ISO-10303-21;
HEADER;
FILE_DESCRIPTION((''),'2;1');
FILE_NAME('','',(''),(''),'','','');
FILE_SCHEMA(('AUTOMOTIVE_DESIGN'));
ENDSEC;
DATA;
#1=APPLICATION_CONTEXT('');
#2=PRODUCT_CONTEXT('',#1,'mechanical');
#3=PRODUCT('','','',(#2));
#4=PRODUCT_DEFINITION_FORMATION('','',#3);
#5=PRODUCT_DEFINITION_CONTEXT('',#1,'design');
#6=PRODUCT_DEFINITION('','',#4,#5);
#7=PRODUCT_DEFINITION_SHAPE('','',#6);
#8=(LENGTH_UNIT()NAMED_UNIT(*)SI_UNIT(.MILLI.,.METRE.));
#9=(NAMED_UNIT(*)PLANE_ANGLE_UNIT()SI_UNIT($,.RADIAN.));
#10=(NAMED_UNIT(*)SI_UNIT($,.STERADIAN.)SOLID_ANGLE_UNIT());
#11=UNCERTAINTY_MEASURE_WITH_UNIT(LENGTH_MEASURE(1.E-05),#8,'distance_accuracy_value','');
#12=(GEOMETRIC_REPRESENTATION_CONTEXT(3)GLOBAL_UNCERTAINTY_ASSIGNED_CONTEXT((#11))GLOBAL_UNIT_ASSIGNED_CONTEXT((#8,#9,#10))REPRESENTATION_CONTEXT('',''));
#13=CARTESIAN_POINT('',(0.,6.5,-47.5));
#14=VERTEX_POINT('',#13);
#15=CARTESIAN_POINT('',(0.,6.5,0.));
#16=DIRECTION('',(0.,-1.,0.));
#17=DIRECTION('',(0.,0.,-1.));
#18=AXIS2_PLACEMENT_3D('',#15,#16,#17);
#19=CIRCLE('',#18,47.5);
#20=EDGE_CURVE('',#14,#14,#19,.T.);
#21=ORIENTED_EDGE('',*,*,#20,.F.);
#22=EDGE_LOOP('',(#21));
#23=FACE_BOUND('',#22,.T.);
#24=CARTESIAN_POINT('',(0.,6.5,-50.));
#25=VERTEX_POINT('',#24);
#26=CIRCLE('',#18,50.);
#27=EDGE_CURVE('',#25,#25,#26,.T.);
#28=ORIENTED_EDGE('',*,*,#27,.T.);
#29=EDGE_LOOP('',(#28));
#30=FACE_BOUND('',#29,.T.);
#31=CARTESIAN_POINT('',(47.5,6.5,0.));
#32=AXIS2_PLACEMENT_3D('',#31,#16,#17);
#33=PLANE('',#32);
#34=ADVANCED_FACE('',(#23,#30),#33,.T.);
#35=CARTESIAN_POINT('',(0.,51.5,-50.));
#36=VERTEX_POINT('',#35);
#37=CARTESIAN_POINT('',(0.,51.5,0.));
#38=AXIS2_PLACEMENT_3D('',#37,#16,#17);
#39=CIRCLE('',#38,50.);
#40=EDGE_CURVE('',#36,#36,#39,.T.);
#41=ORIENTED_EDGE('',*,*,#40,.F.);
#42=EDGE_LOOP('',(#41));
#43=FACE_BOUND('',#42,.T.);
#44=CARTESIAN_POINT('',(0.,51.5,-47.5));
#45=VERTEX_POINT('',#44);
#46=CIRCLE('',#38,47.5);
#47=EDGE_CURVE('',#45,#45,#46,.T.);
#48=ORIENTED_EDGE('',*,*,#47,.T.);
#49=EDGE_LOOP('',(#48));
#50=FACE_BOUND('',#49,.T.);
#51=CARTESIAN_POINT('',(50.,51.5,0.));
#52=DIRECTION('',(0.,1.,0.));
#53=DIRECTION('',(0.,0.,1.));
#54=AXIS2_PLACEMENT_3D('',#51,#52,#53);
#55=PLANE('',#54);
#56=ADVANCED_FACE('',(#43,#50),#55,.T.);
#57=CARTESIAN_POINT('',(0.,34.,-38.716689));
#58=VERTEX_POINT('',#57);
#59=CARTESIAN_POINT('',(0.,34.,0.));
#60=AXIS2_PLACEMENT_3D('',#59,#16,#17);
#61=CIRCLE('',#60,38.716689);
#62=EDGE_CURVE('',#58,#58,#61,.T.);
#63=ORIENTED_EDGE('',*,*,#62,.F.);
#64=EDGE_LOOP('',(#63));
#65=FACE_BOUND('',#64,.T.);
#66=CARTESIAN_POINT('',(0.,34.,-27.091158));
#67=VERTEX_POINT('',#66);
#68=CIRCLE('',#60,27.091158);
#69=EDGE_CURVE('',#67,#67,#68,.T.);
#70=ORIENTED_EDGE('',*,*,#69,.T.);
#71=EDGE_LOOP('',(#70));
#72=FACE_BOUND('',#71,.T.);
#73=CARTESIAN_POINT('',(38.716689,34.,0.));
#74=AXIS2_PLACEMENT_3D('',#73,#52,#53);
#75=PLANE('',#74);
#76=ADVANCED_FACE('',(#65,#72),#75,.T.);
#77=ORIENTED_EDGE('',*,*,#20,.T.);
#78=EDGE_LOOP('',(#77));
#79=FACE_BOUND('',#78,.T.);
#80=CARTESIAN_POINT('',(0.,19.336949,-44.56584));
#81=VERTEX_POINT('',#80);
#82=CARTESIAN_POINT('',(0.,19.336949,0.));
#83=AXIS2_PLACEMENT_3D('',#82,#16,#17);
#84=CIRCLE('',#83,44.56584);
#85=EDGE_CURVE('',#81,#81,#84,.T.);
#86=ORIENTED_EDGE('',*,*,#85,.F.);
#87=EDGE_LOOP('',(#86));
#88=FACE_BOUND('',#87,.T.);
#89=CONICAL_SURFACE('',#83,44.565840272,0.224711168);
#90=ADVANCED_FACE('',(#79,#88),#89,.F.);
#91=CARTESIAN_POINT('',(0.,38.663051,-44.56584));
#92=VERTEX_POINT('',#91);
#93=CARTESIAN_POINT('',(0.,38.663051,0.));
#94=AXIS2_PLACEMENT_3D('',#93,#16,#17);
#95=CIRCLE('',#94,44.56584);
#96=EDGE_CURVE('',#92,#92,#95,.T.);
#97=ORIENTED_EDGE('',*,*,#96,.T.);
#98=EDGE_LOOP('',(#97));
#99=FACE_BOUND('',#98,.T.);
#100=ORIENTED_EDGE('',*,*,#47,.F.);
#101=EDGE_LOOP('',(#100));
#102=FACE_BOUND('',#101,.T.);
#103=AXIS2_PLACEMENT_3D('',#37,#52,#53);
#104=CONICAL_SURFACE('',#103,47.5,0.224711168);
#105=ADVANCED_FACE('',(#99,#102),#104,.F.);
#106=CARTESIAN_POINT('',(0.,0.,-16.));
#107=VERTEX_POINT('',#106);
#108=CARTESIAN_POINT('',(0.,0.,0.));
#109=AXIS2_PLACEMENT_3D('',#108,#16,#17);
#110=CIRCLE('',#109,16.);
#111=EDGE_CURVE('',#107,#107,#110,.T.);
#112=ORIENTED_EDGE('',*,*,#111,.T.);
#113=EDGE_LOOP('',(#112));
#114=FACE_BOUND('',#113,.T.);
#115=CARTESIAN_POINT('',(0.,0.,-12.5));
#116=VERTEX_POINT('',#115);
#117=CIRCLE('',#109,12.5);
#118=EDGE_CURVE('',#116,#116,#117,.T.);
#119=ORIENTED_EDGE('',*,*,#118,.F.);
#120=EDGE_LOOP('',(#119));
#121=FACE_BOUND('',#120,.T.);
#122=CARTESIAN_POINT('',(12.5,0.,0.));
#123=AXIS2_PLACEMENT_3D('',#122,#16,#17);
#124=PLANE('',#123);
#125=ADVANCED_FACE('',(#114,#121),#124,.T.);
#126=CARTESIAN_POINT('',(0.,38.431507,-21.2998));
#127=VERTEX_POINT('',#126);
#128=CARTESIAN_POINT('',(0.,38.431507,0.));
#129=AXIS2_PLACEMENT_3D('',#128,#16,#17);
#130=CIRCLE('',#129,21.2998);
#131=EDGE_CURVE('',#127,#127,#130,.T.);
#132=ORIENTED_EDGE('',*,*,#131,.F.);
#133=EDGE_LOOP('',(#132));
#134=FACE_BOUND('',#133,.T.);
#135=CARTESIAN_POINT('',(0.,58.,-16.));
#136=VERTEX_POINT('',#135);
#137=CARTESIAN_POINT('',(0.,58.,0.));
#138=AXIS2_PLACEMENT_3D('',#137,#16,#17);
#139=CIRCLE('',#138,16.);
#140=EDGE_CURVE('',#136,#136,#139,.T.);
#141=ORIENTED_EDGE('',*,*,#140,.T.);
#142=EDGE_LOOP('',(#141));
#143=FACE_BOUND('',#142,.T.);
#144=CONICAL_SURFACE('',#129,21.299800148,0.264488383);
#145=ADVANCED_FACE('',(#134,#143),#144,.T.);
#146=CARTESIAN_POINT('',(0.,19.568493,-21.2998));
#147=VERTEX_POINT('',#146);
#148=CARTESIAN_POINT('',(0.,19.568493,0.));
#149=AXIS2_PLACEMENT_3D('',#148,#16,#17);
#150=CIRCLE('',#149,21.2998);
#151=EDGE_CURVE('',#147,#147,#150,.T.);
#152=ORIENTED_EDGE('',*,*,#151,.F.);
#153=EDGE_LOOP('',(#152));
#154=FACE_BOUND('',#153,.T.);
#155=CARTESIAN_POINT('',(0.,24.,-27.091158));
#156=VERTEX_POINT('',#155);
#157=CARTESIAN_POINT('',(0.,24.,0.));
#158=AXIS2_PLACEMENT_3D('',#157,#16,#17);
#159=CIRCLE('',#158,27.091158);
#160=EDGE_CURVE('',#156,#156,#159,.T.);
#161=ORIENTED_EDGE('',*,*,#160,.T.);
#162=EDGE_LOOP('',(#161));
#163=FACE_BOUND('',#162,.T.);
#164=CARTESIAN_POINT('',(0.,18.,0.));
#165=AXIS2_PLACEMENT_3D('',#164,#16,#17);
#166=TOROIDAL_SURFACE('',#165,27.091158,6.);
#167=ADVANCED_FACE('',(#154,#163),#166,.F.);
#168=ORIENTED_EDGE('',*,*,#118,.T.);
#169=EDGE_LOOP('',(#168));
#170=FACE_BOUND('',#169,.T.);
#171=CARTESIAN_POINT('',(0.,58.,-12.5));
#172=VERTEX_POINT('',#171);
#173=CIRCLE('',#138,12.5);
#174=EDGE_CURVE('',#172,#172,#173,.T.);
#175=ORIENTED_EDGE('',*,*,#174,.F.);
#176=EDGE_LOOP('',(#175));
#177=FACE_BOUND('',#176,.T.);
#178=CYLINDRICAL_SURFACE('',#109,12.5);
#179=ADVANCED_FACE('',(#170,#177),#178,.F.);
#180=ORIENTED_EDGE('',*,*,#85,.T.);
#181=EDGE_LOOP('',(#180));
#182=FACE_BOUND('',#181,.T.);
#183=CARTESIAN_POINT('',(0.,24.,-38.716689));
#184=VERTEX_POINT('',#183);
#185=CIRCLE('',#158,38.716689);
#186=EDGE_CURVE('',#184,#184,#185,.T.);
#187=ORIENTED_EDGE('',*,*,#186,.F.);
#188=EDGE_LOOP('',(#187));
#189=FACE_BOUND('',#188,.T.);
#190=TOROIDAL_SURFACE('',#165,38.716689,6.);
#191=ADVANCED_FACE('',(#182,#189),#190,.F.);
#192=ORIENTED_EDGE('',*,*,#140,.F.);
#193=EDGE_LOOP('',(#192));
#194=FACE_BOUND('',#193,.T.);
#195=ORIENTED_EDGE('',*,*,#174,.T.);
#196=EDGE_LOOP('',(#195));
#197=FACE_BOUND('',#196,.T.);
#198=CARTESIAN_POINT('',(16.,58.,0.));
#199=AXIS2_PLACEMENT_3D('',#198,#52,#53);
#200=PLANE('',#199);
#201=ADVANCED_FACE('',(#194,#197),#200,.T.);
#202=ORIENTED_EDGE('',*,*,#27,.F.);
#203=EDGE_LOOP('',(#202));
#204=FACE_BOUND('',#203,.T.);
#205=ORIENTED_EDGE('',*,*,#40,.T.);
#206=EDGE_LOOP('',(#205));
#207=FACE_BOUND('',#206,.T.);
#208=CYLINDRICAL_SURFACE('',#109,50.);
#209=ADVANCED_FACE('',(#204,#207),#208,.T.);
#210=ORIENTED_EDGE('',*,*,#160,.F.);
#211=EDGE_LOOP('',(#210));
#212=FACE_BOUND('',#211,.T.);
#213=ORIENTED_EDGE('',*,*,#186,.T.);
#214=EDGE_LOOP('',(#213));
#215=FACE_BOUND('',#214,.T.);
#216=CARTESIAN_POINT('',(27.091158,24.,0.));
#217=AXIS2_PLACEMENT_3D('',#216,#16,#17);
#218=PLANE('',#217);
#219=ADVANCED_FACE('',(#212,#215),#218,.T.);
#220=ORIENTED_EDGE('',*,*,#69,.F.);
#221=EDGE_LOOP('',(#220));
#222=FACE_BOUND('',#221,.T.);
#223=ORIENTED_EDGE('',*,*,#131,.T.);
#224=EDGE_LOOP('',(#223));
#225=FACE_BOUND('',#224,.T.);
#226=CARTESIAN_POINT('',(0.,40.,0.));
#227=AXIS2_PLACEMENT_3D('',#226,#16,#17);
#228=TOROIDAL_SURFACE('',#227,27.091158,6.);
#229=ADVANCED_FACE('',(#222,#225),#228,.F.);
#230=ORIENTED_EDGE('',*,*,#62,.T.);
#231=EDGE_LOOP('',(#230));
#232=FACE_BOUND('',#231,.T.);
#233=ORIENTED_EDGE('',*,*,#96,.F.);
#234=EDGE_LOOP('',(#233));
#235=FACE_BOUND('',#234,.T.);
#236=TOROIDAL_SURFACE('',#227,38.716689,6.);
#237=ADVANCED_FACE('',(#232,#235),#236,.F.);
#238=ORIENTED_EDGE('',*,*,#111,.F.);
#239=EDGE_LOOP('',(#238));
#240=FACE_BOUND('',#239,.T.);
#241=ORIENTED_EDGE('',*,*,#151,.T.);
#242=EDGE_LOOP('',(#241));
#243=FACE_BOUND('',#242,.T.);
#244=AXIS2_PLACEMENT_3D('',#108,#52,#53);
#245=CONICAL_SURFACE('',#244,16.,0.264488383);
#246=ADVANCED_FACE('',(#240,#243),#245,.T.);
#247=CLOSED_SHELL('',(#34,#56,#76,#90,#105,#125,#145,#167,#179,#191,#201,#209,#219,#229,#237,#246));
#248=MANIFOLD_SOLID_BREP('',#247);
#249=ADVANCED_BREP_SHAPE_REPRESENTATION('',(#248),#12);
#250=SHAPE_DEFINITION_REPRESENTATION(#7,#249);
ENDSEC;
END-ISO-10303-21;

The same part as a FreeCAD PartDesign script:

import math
import FreeCAD as App
import Part
import Sketcher

V = App.Vector
Q = App.Units.Quantity

doc = App.newDocument("Part")
body = doc.addObject("PartDesign::Body", "Body")

# Sketch on XY plane
sketch1 = body.newObject("Sketcher::SketchObject", "Sketch")
sketch1.AttachmentSupport = (doc.getObject("XY_Plane"), [""])
sketch1.MapMode = "FlatFace"
sketch1.addGeometry(Part.LineSegment(V(12.5, 0, 0), V(16, 0, 0)), False)
sketch1.addGeometry(Part.LineSegment(V(16, 0, 0), V(21.3, 19.6, 0)), False)
sketch1.addGeometry(Part.ArcOfCircle(Part.Circle(V(27.1, 18, 0), V(0, 0, 1), 6), math.radians(90), math.radians(165)), False)
sketch1.addGeometry(Part.LineSegment(V(27.1, 24, 0), V(38.7, 24, 0)), False)
sketch1.addGeometry(Part.ArcOfCircle(Part.Circle(V(38.7, 18, 0), V(0, 0, 1), 6), math.radians(13), math.radians(90)), False)
sketch1.addGeometry(Part.LineSegment(V(44.6, 19.3, 0), V(47.5, 6.5, 0)), False)
sketch1.addGeometry(Part.LineSegment(V(47.5, 6.5, 0), V(50, 6.5, 0)), False)
sketch1.addGeometry(Part.LineSegment(V(50, 6.5, 0), V(50, 51.5, 0)), False)
sketch1.addGeometry(Part.LineSegment(V(50, 51.5, 0), V(47.5, 51.5, 0)), False)
sketch1.addGeometry(Part.LineSegment(V(47.5, 51.5, 0), V(44.6, 38.7, 0)), False)
sketch1.addGeometry(Part.ArcOfCircle(Part.Circle(V(38.7, 40, 0), V(0, 0, 1), 6), math.radians(-90), math.radians(-13)), False)
sketch1.addGeometry(Part.LineSegment(V(38.7, 34, 0), V(27.1, 34, 0)), False)
sketch1.addGeometry(Part.ArcOfCircle(Part.Circle(V(27.1, 40, 0), V(0, 0, 1), 6), math.radians(-165), math.radians(-90)), False)
sketch1.addGeometry(Part.LineSegment(V(21.3, 38.4, 0), V(16, 58, 0)), False)
sketch1.addGeometry(Part.LineSegment(V(16, 58, 0), V(12.5, 58, 0)), False)
sketch1.addGeometry(Part.LineSegment(V(12.5, 58, 0), V(12.5, 0, 0)), False)
sketch1.addConstraint(Sketcher.Constraint("Coincident", 0, 2, 1, 1))
sketch1.addConstraint(Sketcher.Constraint("Tangent", 1, 2, 2, 2))
sketch1.addConstraint(Sketcher.Constraint("Tangent", 2, 1, 3, 1))
sketch1.addConstraint(Sketcher.Constraint("Tangent", 3, 2, 4, 2))
sketch1.addConstraint(Sketcher.Constraint("Tangent", 4, 1, 5, 1))
sketch1.addConstraint(Sketcher.Constraint("Coincident", 5, 2, 6, 1))
sketch1.addConstraint(Sketcher.Constraint("Coincident", 6, 2, 7, 1))
sketch1.addConstraint(Sketcher.Constraint("Coincident", 7, 2, 8, 1))
sketch1.addConstraint(Sketcher.Constraint("Coincident", 8, 2, 9, 1))
sketch1.addConstraint(Sketcher.Constraint("Tangent", 9, 2, 10, 2))
sketch1.addConstraint(Sketcher.Constraint("Tangent", 10, 1, 11, 1))
sketch1.addConstraint(Sketcher.Constraint("Tangent", 11, 2, 12, 2))
sketch1.addConstraint(Sketcher.Constraint("Tangent", 12, 1, 13, 1))
sketch1.addConstraint(Sketcher.Constraint("Coincident", 13, 2, 14, 1))
sketch1.addConstraint(Sketcher.Constraint("Coincident", 14, 2, 15, 1))
sketch1.addConstraint(Sketcher.Constraint("Coincident", 15, 2, 0, 1))
sketch1.addConstraint(Sketcher.Constraint("Horizontal", 0))
sketch1.addConstraint(Sketcher.Constraint("Horizontal", 3))
sketch1.addConstraint(Sketcher.Constraint("Horizontal", 6))
sketch1.addConstraint(Sketcher.Constraint("Vertical", 7))
sketch1.addConstraint(Sketcher.Constraint("Horizontal", 8))
sketch1.addConstraint(Sketcher.Constraint("Horizontal", 11))
sketch1.addConstraint(Sketcher.Constraint("Horizontal", 14))
sketch1.addConstraint(Sketcher.Constraint("Vertical", 15))
sketch1.addConstraint(Sketcher.Constraint("Equal", 2, 4))
sketch1.addConstraint(Sketcher.Constraint("Equal", 4, 10))
sketch1.addConstraint(Sketcher.Constraint("Equal", 10, 12))
sketch1.addConstraint(Sketcher.Constraint("PointOnObject", 0, 2, -1))
sketch1.addConstraint(Sketcher.Constraint("Vertical", 4, 3, 10, 3))
sketch1.addConstraint(Sketcher.Constraint("Vertical", 2, 3, 12, 3))
sketch1.addConstraint(Sketcher.Constraint("Vertical", 5, 2, 8, 2))
sketch1.addConstraint(Sketcher.Constraint("Vertical", 4, 1, 9, 2))
sketch1.addConstraint(Sketcher.Constraint("Vertical", 1, 2, 12, 1))
sketch1.addConstraint(Sketcher.Constraint("Vertical", 0, 2, 13, 2))
sketch1.addConstraint(Sketcher.Constraint("Radius", 2, Q("6 mm")))
sketch1.addConstraint(Sketcher.Constraint("DistanceY", 7, 1, 7, 2, Q("45 mm")))
sketch1.addConstraint(Sketcher.Constraint("DistanceY", 15, 2, 15, 1, Q("58 mm")))
sketch1.addConstraint(Sketcher.Constraint("DistanceX", 0, 1, 0, 2, Q("3.5 mm")))
sketch1.addConstraint(Sketcher.Constraint("DistanceX", 6, 1, 6, 2, Q("2.5 mm")))
sketch1.addConstraint(Sketcher.Constraint("DistanceY", -1, 1, 2, 3, Q("18 mm")))
sketch1.addConstraint(Sketcher.Constraint("DistanceX", -1, 1, 0, 2, Q("16 mm")))
sketch1.addConstraint(Sketcher.Constraint("DistanceX", -1, 1, 6, 2, Q("50 mm")))
sketch1.addConstraint(Sketcher.Constraint("DistanceX", 3, 1, 3, 2, Q("11.625531 mm")))
sketch1.addConstraint(Sketcher.Constraint("DistanceX", -1, 1, 1, 2, Q("21.2998 mm")))
revolution = body.newObject("PartDesign::Revolution", "Revolution")
revolution.Profile = sketch1
revolution.ReferenceAxis = (sketch1, ["V_Axis"])
revolution.Angle = 360

doc.recompute()
